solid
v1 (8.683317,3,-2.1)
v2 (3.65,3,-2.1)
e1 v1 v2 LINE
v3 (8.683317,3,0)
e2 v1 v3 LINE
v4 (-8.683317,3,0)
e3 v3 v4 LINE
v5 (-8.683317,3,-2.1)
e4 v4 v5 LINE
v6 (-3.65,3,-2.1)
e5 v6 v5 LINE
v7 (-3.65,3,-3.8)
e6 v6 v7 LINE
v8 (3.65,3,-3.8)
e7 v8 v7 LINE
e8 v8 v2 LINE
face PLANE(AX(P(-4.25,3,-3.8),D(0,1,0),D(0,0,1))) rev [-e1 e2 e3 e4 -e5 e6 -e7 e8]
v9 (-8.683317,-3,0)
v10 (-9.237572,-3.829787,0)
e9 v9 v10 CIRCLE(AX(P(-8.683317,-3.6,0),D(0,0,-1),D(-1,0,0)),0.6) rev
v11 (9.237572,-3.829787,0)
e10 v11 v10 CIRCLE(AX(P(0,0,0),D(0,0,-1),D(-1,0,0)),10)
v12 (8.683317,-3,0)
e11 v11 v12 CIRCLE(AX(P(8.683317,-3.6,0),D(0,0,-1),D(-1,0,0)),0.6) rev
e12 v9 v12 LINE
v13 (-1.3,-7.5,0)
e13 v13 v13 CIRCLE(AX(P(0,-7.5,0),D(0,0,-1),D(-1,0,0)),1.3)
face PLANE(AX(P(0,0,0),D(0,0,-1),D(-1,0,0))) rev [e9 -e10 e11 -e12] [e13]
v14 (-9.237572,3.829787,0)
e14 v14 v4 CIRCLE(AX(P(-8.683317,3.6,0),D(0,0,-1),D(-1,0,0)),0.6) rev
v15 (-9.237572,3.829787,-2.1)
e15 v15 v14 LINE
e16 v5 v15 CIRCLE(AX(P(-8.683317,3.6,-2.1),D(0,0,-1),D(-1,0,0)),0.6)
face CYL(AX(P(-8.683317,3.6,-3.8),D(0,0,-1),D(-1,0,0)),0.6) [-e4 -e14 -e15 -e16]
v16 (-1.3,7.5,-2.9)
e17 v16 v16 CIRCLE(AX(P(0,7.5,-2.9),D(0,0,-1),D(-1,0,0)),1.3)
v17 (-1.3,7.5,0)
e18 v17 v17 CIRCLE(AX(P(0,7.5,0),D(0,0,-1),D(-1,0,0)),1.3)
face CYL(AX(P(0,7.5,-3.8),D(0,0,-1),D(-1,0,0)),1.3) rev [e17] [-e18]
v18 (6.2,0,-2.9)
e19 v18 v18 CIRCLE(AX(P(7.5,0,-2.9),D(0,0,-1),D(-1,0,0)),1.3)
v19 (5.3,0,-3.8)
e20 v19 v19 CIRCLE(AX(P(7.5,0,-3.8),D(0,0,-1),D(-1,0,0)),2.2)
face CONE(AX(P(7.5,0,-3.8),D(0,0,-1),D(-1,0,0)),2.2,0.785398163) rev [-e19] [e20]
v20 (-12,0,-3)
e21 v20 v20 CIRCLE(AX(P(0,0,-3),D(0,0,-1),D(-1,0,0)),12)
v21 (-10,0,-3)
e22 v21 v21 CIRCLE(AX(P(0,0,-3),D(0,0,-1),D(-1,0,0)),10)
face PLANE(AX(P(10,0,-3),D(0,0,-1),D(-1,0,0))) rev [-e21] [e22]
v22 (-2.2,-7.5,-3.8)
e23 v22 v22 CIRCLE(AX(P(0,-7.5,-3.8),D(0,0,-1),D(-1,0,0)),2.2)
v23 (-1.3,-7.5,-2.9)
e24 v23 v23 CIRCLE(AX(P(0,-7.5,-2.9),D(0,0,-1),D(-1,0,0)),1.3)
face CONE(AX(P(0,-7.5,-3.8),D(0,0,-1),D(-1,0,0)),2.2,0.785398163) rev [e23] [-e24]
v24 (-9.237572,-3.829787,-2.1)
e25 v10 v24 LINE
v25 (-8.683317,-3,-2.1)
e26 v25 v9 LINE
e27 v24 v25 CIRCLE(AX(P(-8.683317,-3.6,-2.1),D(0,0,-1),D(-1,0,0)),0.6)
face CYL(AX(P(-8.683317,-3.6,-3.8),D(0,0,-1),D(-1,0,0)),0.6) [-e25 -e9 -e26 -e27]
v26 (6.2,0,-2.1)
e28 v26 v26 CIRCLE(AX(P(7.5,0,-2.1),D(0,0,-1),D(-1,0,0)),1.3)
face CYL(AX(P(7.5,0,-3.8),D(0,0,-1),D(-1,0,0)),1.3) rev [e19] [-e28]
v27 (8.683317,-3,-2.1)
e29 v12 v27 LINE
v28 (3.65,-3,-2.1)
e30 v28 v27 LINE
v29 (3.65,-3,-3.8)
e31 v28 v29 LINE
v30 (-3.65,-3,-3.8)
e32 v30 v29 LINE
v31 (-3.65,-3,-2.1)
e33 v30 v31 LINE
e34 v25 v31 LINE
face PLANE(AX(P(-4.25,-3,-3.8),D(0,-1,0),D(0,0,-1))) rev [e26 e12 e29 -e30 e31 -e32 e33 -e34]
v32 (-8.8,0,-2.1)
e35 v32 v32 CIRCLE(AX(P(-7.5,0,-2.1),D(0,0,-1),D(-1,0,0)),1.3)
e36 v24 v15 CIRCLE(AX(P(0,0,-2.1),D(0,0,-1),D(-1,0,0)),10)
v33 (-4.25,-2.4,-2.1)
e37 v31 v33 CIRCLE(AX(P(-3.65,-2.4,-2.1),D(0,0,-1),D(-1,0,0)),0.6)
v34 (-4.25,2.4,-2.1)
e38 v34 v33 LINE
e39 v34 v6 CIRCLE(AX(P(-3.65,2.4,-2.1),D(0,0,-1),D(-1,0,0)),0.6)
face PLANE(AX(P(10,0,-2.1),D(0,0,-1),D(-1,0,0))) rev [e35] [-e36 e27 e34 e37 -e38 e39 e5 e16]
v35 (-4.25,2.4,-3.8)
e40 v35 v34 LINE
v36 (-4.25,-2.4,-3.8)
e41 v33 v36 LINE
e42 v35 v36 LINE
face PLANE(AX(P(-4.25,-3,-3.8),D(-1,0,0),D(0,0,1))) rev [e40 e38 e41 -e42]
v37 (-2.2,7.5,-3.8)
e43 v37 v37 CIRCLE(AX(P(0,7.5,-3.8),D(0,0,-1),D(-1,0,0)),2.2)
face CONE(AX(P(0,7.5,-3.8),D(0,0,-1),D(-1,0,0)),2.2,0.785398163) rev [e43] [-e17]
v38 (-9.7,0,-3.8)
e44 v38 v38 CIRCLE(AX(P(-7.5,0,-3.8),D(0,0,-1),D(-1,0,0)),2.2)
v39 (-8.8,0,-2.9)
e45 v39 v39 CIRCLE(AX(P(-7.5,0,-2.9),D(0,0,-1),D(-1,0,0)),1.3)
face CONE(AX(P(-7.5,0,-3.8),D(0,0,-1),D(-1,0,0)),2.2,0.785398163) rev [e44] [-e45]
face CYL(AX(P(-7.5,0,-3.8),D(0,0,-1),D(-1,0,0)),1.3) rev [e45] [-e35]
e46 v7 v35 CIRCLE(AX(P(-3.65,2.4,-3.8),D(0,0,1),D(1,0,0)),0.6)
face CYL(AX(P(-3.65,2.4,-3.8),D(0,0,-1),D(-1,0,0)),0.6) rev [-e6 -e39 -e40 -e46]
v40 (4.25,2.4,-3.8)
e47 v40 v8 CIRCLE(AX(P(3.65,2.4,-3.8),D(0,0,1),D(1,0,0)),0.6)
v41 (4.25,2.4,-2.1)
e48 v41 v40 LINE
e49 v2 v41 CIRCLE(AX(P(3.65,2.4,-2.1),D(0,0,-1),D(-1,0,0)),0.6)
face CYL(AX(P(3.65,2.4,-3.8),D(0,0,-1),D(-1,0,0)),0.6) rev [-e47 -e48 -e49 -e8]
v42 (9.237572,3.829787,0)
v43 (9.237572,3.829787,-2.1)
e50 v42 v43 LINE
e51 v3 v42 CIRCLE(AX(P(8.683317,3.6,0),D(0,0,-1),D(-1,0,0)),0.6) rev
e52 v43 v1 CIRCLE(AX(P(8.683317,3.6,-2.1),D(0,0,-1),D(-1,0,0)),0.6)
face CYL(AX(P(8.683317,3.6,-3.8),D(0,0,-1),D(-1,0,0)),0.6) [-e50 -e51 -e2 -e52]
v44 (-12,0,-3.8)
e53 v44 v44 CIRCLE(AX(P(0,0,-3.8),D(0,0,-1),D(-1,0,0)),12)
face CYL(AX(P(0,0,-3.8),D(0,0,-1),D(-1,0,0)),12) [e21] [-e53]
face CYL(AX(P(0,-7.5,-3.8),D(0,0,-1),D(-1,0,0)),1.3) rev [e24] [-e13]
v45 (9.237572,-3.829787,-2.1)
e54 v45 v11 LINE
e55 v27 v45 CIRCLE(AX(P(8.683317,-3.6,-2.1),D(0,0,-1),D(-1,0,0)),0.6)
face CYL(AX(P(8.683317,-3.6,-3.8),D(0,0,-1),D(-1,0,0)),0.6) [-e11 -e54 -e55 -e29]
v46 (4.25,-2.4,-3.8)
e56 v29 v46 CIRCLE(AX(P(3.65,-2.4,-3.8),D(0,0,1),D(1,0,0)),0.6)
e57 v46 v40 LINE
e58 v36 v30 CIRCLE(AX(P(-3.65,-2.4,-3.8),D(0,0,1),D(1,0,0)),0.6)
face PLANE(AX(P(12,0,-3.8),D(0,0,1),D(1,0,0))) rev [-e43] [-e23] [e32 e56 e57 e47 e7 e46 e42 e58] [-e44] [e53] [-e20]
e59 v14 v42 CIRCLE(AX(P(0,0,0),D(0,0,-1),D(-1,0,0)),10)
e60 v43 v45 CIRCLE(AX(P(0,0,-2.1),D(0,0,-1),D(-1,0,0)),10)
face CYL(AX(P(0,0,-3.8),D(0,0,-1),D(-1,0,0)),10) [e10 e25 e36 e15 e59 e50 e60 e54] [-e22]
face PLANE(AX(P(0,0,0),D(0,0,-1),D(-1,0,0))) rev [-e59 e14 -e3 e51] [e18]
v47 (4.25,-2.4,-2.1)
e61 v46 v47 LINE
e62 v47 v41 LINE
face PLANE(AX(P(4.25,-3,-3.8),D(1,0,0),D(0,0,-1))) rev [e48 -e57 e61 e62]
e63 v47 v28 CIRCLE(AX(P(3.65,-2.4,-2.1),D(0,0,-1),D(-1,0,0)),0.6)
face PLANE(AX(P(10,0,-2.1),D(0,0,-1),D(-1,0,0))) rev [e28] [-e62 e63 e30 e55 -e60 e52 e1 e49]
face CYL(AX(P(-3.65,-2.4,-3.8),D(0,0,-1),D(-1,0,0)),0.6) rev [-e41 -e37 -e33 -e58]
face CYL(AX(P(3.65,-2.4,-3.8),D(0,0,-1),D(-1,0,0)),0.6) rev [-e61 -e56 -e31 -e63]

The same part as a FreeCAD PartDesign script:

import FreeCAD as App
import Part
import Sketcher
Q = App.Units.Quantity


def edges_at(feature, points):
    """Names of the edges that pass closest to the given points."""
    edges = feature.Shape.Edges
    near = lambda p: min(range(len(edges)), key=lambda i: edges[i].distToShape(Part.Vertex(*p))[0])
    return sorted({f"Edge{near(p) + 1}" for p in points})

doc = App.newDocument("Part")
body = doc.addObject("PartDesign::Body", "Body")

sketch1 = body.newObject("Sketcher::SketchObject", "Sketch")
sketch1.AttachmentSupport = (doc.getObject("XZ_Plane"), [""])
sketch1.MapMode = "FlatFace"
sketch1.addGeometry([
    Part.LineSegment(App.Vector(0, 0, 0), App.Vector(10, 0, 0)),
    Part.LineSegment(App.Vector(10, 0, 0), App.Vector(10, -3, 0)),
    Part.LineSegment(App.Vector(10, -3, 0), App.Vector(12, -3, 0)),
    Part.LineSegment(App.Vector(12, -3, 0), App.Vector(12, -3.8, 0)),
    Part.LineSegment(App.Vector(12, -3.8, 0), App.Vector(0, -3.8, 0)),
    Part.LineSegment(App.Vector(0, -3.8, 0), App.Vector(0, 0, 0)),
], False)
sketch1.addConstraint([
    Sketcher.Constraint("Coincident", 0, 2, 1, 1),
    Sketcher.Constraint("Coincident", 1, 2, 2, 1),
    Sketcher.Constraint("Coincident", 2, 2, 3, 1),
    Sketcher.Constraint("Coincident", 3, 2, 4, 1),
    Sketcher.Constraint("Coincident", 4, 2, 5, 1),
    Sketcher.Constraint("Coincident", 5, 2, 0, 1),
    Sketcher.Constraint("Horizontal", 0),
    Sketcher.Constraint("Vertical", 1),
    Sketcher.Constraint("Horizontal", 2),
    Sketcher.Constraint("Vertical", 3),
    Sketcher.Constraint("Horizontal", 4),
    Sketcher.Constraint("Vertical", 5),
    Sketcher.Constraint("Coincident", 5, 2, -1, 1),
    Sketcher.Constraint("DistanceX", 0, 1, 0, 2, Q("10 mm")),
    Sketcher.Constraint("DistanceX", 2, 1, 2, 2, Q("2 mm")),
    Sketcher.Constraint("DistanceY", 1, 2, 1, 1, Q("3 mm")),
    Sketcher.Constraint("DistanceY", 3, 2, 3, 1, Q("0.8 mm")),
])
revolution = body.newObject("PartDesign::Revolution", "Revolution")
revolution.Profile = sketch1
revolution.ReferenceAxis = (sketch1, ["V_Axis"])
revolution.Angle = 360

sketch2 = body.newObject("Sketcher::SketchObject", "Sketch001")
sketch2.AttachmentSupport = (doc.getObject("XY_Plane"), [""])
sketch2.MapMode = "FlatFace"
sketch2.addGeometry([
    Part.LineSegment(App.Vector(-4, 3, 0), App.Vector(-4, -3, 0)),
    Part.LineSegment(App.Vector(-4, -3, 0), App.Vector(4, -3, 0)),
    Part.LineSegment(App.Vector(4, -3, 0), App.Vector(4, 3, 0)),
    Part.LineSegment(App.Vector(4, 3, 0), App.Vector(-4, 3, 0)),
], False)
sketch2.addConstraint([
    Sketcher.Constraint("Coincident", 0, 2, 1, 1),
    Sketcher.Constraint("Coincident", 1, 2, 2, 1),
    Sketcher.Constraint("Coincident", 2, 2, 3, 1),
    Sketcher.Constraint("Coincident", 3, 2, 0, 1),
    Sketcher.Constraint("Vertical", 0),
    Sketcher.Constraint("Horizontal", 1),
    Sketcher.Constraint("Vertical", 2),
    Sketcher.Constraint("Horizontal", 3),
    Sketcher.Constraint("Symmetric", 0, 2, 2, 2, -1, 1),
    Sketcher.Constraint("DistanceY", 0, 2, 0, 1, Q("6 mm")),
    Sketcher.Constraint("DistanceX", 1, 1, 1, 2, Q("8.5 mm")),
])
pocket1 = body.newObject("PartDesign::Pocket", "Pocket")
pocket1.Profile = sketch2
pocket1.Type = "ThroughAll"

sketch3 = body.newObject("Sketcher::SketchObject", "Sketch002")
sketch3.AttachmentSupport = (doc.getObject("XY_Plane"), [""])
sketch3.MapMode = "FlatFace"
sketch3.addGeometry([
    Part.LineSegment(App.Vector(-12, 3, 0), App.Vector(-12, -3, 0)),
    Part.LineSegment(App.Vector(-12, -3, 0), App.Vector(12, -3, 0)),
    Part.LineSegment(App.Vector(12, -3, 0), App.Vector(12, 3, 0)),
    Part.LineSegment(App.Vector(12, 3, 0), App.Vector(-12, 3, 0)),
], False)
sketch3.addConstraint([
    Sketcher.Constraint("Coincident", 0, 2, 1, 1),
    Sketcher.Constraint("Coincident", 1, 2, 2, 1),
    Sketcher.Constraint("Coincident", 2, 2, 3, 1),
    Sketcher.Constraint("Coincident", 3, 2, 0, 1),
    Sketcher.Constraint("Vertical", 0),
    Sketcher.Constraint("Horizontal", 1),
    Sketcher.Constraint("Vertical", 2),
    Sketcher.Constraint("Horizontal", 3),
    Sketcher.Constraint("Symmetric", 0, 2, 2, 2, -1, 1),
    Sketcher.Constraint("DistanceX", 1, 1, 1, 2, Q("24 mm")),
    Sketcher.Constraint("DistanceY", 0, 2, 0, 1, Q("6 mm")),
])
pocket2 = body.newObject("PartDesign::Pocket", "Pocket001")
pocket2.Profile = sketch3
pocket2.Length = 2.1
doc.recompute()

fillet = body.newObject("PartDesign::Fillet", "Fillet")
fillet.Base = (pocket2, edges_at(pocket2, [
    (4.25, 3, -2.95),
    (4.25, -3, -2.95),
    (-4.25, -3, -2.95),
    (-4.25, 3, -2.95),
]))
fillet.Radius = 0.6
doc.recompute()

fillet2 = body.newObject("PartDesign::Fillet", "Fillet001")
fillet2.Base = (fillet, edges_at(fillet, [
    (-9.539, -3, -1.05),
    (9.539, -3, -1.05),
    (9.539, 3, -1.05),
    (-9.539, 3, -1.05),
]))
fillet2.Radius = 0.6

sketch4 = body.newObject("Sketcher::SketchObject", "Sketch003")
sketch4.AttachmentSupport = (doc.getObject("XY_Plane"), [""])
sketch4.MapMode = "FlatFace"
sketch4.AttachmentOffset = App.Placement(App.Vector(0, 0, -3.8), App.Rotation())
sketch4.addGeometry([
    Part.Circle(App.Vector(-7.5, 0, 0), App.Vector(0, 0, 1), 1.3),
    Part.Circle(App.Vector(7.5, 0, 0), App.Vector(0, 0, 1), 1.3),
], False)
sketch4.addConstraint([
    Sketcher.Constraint("Equal", 0, 1),
    Sketcher.Constraint("Symmetric", 0, 3, 1, 3, -1, 1),
    Sketcher.Constraint("PointOnObject", 0, 3, -1),
    Sketcher.Constraint("Diameter", 0, Q("2.6 mm")),
    Sketcher.Constraint("DistanceX", 0, 3, 1, 3, Q("15 mm")),
])
doc.recompute()
hole = body.newObject("PartDesign::Hole", "Hole")
hole.Profile = sketch4
hole.ThreadType = "None"
hole.Diameter = 2.6
hole.DepthType = "ThroughAll"
hole.HoleCutType = "Countersink"
hole.HoleCutDiameter = 4.4
hole.HoleCutCountersinkAngle = 90
hole.Reversed = True

sketch5 = body.newObject("Sketcher::SketchObject", "Sketch004")
sketch5.AttachmentSupport = (doc.getObject("XY_Plane"), [""])
sketch5.MapMode = "FlatFace"
sketch5.AttachmentOffset = App.Placement(App.Vector(0, 0, -3.8), App.Rotation())
sketch5.addGeometry([
    Part.Circle(App.Vector(0, 7.5, 0), App.Vector(0, 0, 1), 1.3),
    Part.Circle(App.Vector(0, -7.5, 0), App.Vector(0, 0, 1), 1.3),
], False)
sketch5.addConstraint([
    Sketcher.Constraint("Equal", 0, 1),
    Sketcher.Constraint("Symmetric", 0, 3, 1, 3, -1, 1),
    Sketcher.Constraint("PointOnObject", 0, 3, -2),
    Sketcher.Constraint("Diameter", 0, Q("2.6 mm")),
    Sketcher.Constraint("DistanceY", 1, 3, 0, 3, Q("15 mm")),
])
doc.recompute()
hole2 = body.newObject("PartDesign::Hole", "Hole001")
hole2.Profile = sketch5
hole2.ThreadType = "None"
hole2.Diameter = 2.6
hole2.DepthType = "ThroughAll"
hole2.HoleCutType = "Countersink"
hole2.HoleCutDiameter = 4.4
hole2.HoleCutCountersinkAngle = 90
hole2.Reversed = True

doc.recompute()
